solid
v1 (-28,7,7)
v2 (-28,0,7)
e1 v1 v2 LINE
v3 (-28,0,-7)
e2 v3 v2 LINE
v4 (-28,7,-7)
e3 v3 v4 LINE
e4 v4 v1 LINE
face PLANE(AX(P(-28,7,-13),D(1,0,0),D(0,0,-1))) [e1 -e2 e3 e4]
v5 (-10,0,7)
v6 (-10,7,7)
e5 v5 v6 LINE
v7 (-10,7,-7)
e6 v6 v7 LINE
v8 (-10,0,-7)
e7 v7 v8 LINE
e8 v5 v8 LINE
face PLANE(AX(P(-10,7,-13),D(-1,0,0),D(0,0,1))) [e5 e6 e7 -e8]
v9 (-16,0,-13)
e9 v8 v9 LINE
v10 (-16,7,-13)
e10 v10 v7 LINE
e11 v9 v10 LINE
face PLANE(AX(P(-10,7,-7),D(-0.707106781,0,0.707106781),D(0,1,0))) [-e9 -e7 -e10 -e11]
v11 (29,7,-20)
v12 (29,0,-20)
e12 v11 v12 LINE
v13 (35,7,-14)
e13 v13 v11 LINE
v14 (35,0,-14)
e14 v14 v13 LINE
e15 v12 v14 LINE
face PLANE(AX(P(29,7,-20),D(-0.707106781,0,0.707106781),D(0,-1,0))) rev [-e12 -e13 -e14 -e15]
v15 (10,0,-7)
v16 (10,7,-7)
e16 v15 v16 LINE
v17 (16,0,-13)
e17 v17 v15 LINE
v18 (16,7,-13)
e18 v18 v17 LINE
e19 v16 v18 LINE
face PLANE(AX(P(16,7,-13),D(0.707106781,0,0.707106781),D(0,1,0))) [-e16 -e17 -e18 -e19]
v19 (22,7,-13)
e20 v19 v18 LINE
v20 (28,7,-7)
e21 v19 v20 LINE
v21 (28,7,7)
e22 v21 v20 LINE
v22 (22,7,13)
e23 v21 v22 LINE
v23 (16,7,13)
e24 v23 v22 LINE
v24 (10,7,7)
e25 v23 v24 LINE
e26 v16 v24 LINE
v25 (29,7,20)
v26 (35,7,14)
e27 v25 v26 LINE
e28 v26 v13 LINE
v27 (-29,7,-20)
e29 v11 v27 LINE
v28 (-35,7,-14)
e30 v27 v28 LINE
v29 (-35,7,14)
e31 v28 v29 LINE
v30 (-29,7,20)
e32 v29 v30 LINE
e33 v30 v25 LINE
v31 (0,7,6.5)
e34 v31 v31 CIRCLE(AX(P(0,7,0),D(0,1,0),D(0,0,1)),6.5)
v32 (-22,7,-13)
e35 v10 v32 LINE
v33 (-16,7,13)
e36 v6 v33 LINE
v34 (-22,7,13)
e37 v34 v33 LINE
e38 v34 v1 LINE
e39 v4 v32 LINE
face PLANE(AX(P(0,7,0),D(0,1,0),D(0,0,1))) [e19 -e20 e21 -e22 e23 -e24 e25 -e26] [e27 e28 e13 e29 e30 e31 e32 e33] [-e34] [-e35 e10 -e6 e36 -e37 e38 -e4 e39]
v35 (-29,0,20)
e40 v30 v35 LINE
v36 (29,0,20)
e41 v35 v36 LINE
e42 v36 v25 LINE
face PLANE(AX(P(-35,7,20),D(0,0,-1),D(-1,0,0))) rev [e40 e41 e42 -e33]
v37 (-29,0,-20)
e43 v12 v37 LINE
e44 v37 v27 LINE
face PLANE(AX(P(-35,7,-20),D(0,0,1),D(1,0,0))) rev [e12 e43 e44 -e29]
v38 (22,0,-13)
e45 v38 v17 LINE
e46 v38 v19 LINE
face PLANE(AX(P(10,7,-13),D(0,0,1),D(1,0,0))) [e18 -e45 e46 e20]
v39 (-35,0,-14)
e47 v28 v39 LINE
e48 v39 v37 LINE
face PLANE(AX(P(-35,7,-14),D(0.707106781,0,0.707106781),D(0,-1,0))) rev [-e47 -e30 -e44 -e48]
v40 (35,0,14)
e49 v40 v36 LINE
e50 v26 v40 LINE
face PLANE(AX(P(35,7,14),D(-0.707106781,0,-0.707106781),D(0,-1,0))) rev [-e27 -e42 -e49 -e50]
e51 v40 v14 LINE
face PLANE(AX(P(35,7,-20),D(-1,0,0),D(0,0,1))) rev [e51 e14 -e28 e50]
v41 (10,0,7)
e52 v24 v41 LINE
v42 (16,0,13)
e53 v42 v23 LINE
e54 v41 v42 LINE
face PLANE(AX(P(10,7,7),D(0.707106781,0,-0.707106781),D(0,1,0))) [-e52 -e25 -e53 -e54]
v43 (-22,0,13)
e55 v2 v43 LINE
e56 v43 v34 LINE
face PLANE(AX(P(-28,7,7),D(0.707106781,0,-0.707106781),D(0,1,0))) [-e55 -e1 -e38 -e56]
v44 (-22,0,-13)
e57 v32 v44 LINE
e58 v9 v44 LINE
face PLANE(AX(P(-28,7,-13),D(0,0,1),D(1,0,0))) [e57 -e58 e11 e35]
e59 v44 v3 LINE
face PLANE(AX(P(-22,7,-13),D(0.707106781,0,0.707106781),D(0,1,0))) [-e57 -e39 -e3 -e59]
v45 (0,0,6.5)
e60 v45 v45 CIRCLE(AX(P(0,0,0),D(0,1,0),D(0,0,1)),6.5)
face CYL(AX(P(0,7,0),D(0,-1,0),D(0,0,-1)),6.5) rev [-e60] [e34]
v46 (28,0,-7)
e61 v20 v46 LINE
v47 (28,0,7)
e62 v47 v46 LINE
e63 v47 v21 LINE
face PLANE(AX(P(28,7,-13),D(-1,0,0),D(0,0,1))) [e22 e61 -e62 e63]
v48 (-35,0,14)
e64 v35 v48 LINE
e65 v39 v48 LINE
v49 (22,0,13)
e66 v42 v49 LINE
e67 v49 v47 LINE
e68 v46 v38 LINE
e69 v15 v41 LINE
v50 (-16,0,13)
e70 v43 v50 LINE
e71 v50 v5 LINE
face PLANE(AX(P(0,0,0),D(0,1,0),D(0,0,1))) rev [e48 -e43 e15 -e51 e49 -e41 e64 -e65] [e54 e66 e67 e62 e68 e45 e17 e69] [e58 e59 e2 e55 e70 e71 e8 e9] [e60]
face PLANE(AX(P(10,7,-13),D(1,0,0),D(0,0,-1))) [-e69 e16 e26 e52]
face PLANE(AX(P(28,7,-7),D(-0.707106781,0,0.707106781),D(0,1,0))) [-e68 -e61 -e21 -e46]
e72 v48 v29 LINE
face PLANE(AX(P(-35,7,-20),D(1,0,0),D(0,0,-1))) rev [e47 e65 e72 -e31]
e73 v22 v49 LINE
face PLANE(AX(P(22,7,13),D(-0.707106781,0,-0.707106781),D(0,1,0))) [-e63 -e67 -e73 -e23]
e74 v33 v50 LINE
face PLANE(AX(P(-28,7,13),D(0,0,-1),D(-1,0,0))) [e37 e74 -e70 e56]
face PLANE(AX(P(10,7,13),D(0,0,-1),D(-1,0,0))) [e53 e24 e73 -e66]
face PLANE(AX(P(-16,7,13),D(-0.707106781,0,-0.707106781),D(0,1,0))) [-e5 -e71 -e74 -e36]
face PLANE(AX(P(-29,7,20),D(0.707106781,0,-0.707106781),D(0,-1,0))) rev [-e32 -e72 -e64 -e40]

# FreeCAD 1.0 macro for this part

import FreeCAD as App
import Part
import Sketcher


def edges_at(feature, points):
    """Names of the edges that pass closest to the given points."""
    edges = feature.Shape.Edges
    near = lambda p: min(range(len(edges)), key=lambda i: edges[i].distToShape(Part.Vertex(*p))[0])
    return sorted({f"Edge{near(p) + 1}" for p in points})

doc = App.newDocument("Part")
body = doc.addObject("PartDesign::Body", "Body")

# Sketch on XZ plane
sketch1 = body.newObject("Sketcher::SketchObject", "Sketch")
sketch1.AttachmentSupport = (doc.getObject("XZ_Plane"), [""])
sketch1.MapMode = "FlatFace"
sketch1.addGeometry([
    Part.LineSegment(App.Vector(-35, -20, 0), App.Vector(-35, 20, 0)),  # 0
    Part.LineSegment(App.Vector(-35, 20, 0), App.Vector(35, 20, 0)),  # 1
    Part.LineSegment(App.Vector(35, 20, 0), App.Vector(35, -20, 0)),  # 2
    Part.LineSegment(App.Vector(35, -20, 0), App.Vector(-35, -20, 0)),  # 3
    Part.LineSegment(App.Vector(-10, 13, 0), App.Vector(-28, 13, 0)),  # 4
    Part.LineSegment(App.Vector(-28, 13, 0), App.Vector(-28, -13, 0)),  # 5
    Part.LineSegment(App.Vector(-28, -13, 0), App.Vector(-10, -13, 0)),  # 6
    Part.LineSegment(App.Vector(-10, -13, 0), App.Vector(-10, 13, 0)),  # 7
    Part.Circle(App.Vector(0, 0, 0), App.Vector(0, 0, 1), 6),  # 8
    Part.LineSegment(App.Vector(28, 13, 0), App.Vector(10, 13, 0)),  # 9
    Part.LineSegment(App.Vector(10, 13, 0), App.Vector(10, -13, 0)),  # 10
    Part.LineSegment(App.Vector(10, -13, 0), App.Vector(28, -13, 0)),  # 11
    Part.LineSegment(App.Vector(28, -13, 0), App.Vector(28, 13, 0)),  # 12
], False)
sketch1.addConstraint([
    Sketcher.Constraint("Coincident", 0, 2, 1, 1),
    Sketcher.Constraint("Coincident", 1, 2, 2, 1),
    Sketcher.Constraint("Coincident", 2, 2, 3, 1),
    Sketcher.Constraint("Coincident", 3, 2, 0, 1),
    Sketcher.Constraint("Coincident", 4, 2, 5, 1),
    Sketcher.Constraint("Coincident", 5, 2, 6, 1),
    Sketcher.Constraint("Coincident", 6, 2, 7, 1),
    Sketcher.Constraint("Coincident", 7, 2, 4, 1),
    Sketcher.Constraint("Coincident", 9, 2, 10, 1),
    Sketcher.Constraint("Coincident", 10, 2, 11, 1),
    Sketcher.Constraint("Coincident", 11, 2, 12, 1),
    Sketcher.Constraint("Coincident", 12, 2, 9, 1),
    Sketcher.Constraint("Vertical", 0),
    Sketcher.Constraint("Horizontal", 1),
    Sketcher.Constraint("Vertical", 2),
    Sketcher.Constraint("Horizontal", 3),
    Sketcher.Constraint("Horizontal", 4),
    Sketcher.Constraint("Vertical", 5),
    Sketcher.Constraint("Horizontal", 6),
    Sketcher.Constraint("Vertical", 7),
    Sketcher.Constraint("Horizontal", 9),
    Sketcher.Constraint("Vertical", 10),
    Sketcher.Constraint("Horizontal", 11),
    Sketcher.Constraint("Vertical", 12),
    Sketcher.Constraint("Coincident", 8, 3, -1, 1),
    Sketcher.Constraint("Symmetric", 0, 2, 2, 2, -1, 1),
    Sketcher.Constraint("Symmetric", 6, 2, 9, 2, -1, 1),
    Sketcher.Constraint("Symmetric", 4, 2, 11, 2, -1, 1),
    Sketcher.Constraint("Horizontal", 7, 2, 9, 2),
    Sketcher.Constraint("Diameter", 8, 13.0),
    Sketcher.Constraint("DistanceX", 1, 1, 1, 2, 70.0),
    Sketcher.Constraint("DistanceX", 4, 2, 4, 1, 18.0),
    Sketcher.Constraint("DistanceY", 0, 1, 0, 2, 40.0),
    Sketcher.Constraint("DistanceY", 5, 2, 5, 1, 26.0),
    Sketcher.Constraint("DistanceX", 4, 2, -1, 1, 28.0),
])
pad1 = body.newObject("PartDesign::Pad", "Pad")
pad1.Profile = sketch1
pad1.Length = 7
pad1.Reversed = True
doc.recompute()

chamfer = body.newObject("PartDesign::Chamfer", "Chamfer")
chamfer.Base = (pad1, edges_at(pad1, [
    (-10, 3.5, 13),
    (-10, 3.5, -13),
    (-28, 3.5, -13),
    (-28, 3.5, 13),
    (28, 3.5, 13),
    (28, 3.5, -13),
    (10, 3.5, -13),
    (10, 3.5, 13),
    (35, 3.5, 20),
    (-35, 3.5, 20),
    (-35, 3.5, -20),
    (35, 3.5, -20),
]))
chamfer.Size = 6

doc.recompute()
